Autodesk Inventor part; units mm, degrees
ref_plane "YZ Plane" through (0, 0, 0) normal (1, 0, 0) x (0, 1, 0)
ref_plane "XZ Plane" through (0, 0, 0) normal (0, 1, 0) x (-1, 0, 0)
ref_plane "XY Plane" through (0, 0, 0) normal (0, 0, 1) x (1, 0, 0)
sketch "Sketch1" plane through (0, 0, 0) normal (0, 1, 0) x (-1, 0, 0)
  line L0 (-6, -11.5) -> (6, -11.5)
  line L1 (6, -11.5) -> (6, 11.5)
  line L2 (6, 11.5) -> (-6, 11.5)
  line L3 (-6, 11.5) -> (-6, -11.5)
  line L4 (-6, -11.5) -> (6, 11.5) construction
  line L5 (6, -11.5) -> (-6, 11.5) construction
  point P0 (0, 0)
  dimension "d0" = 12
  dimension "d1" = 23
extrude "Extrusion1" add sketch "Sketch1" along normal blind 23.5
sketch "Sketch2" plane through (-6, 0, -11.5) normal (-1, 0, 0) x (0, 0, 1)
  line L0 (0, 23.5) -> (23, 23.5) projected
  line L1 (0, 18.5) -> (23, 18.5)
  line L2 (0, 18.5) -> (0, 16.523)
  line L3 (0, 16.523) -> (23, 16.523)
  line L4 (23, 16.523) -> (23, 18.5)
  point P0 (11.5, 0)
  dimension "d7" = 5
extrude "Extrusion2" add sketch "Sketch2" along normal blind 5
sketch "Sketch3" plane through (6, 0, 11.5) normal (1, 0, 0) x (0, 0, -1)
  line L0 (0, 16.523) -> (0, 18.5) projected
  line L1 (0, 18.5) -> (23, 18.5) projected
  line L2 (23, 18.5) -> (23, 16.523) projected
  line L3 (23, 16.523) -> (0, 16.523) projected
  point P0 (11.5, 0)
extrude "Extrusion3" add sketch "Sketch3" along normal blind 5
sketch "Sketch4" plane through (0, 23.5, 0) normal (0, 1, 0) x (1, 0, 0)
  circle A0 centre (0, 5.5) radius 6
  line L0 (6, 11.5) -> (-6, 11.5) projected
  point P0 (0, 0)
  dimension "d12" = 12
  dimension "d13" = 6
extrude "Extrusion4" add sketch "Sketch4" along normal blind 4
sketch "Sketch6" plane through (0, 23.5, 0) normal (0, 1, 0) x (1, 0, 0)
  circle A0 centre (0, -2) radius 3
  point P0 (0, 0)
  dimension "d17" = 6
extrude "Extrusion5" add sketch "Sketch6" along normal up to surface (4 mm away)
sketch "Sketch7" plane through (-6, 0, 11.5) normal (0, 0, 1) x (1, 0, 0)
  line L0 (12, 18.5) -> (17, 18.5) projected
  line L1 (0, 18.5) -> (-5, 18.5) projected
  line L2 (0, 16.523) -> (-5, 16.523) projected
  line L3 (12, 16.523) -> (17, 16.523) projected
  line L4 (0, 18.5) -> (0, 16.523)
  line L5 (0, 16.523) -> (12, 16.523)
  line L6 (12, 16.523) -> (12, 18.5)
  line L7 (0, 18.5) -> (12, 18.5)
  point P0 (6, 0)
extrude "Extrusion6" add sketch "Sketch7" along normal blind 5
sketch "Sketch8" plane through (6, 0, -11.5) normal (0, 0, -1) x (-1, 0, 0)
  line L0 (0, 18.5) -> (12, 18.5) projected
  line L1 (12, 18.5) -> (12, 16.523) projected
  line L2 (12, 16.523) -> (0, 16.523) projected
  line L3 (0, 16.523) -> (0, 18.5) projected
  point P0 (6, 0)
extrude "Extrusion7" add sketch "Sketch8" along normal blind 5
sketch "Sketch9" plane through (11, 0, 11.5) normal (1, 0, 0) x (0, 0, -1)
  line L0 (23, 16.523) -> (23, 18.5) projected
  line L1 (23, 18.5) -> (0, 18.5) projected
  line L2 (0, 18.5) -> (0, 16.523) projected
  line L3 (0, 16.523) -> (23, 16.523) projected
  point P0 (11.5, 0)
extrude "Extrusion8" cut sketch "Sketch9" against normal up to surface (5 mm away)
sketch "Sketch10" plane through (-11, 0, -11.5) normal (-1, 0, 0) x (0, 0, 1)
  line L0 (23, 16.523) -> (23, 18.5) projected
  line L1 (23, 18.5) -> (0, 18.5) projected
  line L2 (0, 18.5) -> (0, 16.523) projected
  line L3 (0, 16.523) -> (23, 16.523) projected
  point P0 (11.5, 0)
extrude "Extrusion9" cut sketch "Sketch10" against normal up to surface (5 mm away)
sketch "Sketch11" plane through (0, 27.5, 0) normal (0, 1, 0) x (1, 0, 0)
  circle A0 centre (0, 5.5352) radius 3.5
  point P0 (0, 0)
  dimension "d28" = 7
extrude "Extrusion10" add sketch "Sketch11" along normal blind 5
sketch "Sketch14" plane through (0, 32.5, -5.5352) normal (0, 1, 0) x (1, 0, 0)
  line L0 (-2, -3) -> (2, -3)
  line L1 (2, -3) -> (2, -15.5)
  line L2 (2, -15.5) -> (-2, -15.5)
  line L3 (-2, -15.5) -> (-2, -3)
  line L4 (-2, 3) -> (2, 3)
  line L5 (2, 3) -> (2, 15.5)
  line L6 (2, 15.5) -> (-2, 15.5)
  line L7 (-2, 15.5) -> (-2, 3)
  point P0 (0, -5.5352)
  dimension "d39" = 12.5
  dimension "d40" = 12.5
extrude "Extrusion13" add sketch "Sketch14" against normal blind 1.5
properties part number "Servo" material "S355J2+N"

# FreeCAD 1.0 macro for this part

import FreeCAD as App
import Part
import Sketcher

V = App.Vector

doc = App.newDocument("Part")
params = doc.addObject("Spreadsheet::Sheet", "Params")
for row, (alias, value) in enumerate([
    ("sketch1_width", "12 mm"),
    ("sketch1_height", "23 mm"),
    ("pad1_length", "23.5 mm"),
    ("sketch2_height", "23 mm"),
    ("pad2_length", "5 mm"),
    ("sketch3_height", "23 mm"),
    ("pad3_length", "5 mm"),
    ("sketch4_diameter", "12 mm"),
    ("pad4_length", "4 mm"),
    ("sketch5_diameter", "6 mm"),
    ("pad5_length", "4 mm"),
    ("sketch6_width", "12 mm"),
    ("pad6_length", "5 mm"),
    ("sketch7_width", "12 mm"),
    ("pad7_length", "5 mm"),
    ("sketch8_height", "23 mm"),
    ("pocket1_length", "5 mm"),
    ("sketch9_height", "23 mm"),
    ("pocket2_length", "5 mm"),
    ("sketch10_diameter", "7 mm"),
    ("pad8_length", "5 mm"),
    ("sketch11_height", "12.5 mm"),
    ("sketch11_width", "4 mm"),
    ("pad9_length", "1.5 mm"),
], start=1):
    params.set(f"A{row}", alias)
    params.set(f"B{row}", "=" + value)
    params.setAlias(f"B{row}", alias)

body = doc.addObject("PartDesign::Body", "Body")

# Sketch on XZ plane
sketch1 = doc.addObject("Sketcher::SketchObject", "Sketch")
body.addObject(sketch1)
sketch1.AttachmentSupport = (doc.XZ_Plane, [""])
sketch1.MapMode = "FlatFace"
sketch1.addGeometry(Part.LineSegment(V(6, 12, 0), V(6, -12, 0)), False)
sketch1.addGeometry(Part.LineSegment(V(6, -12, 0), V(-6, -12, 0)), False)
sketch1.addGeometry(Part.LineSegment(V(-6, -12, 0), V(-6, 12, 0)), False)
sketch1.addGeometry(Part.LineSegment(V(-6, 12, 0), V(6, 12, 0)), False)
sketch1.addConstraint(Sketcher.Constraint("Coincident", 0, 2, 1, 1))
sketch1.addConstraint(Sketcher.Constraint("Coincident", 1, 2, 2, 1))
sketch1.addConstraint(Sketcher.Constraint("Coincident", 2, 2, 3, 1))
sketch1.addConstraint(Sketcher.Constraint("Coincident", 3, 2, 0, 1))
sketch1.addConstraint(Sketcher.Constraint("Vertical", 0))
sketch1.addConstraint(Sketcher.Constraint("Horizontal", 1))
sketch1.addConstraint(Sketcher.Constraint("Vertical", 2))
sketch1.addConstraint(Sketcher.Constraint("Horizontal", 3))
sketch1.addConstraint(Sketcher.Constraint("Symmetric", 0, 2, 2, 2, -1, 1))
sketch1.addConstraint(Sketcher.Constraint("DistanceX", 1, 2, 1, 1, 12.0))
sketch1.addConstraint(Sketcher.Constraint("DistanceY", 0, 2, 0, 1, 23.0))
sketch1.setExpression("Constraints[9]", "Params.sketch1_width")
sketch1.setExpression("Constraints[10]", "Params.sketch1_height")
pad1 = doc.addObject("PartDesign::Pad", "Pad")
body.addObject(pad1)
pad1.Profile = sketch1
pad1.setExpression("Length", "Params.pad1_length")
pad1.Reversed = True

# Sketch on YZ plane
sketch2 = doc.addObject("Sketcher::SketchObject", "Sketch001")
body.addObject(sketch2)
sketch2.AttachmentSupport = (doc.YZ_Plane, [""])
sketch2.MapMode = "FlatFace"
sketch2.AttachmentOffset = App.Placement(V(0, 0, -6), App.Rotation())
sketch2.addGeometry(Part.LineSegment(V(18.5, 11.5, 0), V(18.5, -11.5, 0)), False)
sketch2.addGeometry(Part.LineSegment(V(18.5, -11.5, 0), V(16.5, -11.5, 0)), False)
sketch2.addGeometry(Part.LineSegment(V(16.5, -11.5, 0), V(16.5, 11.5, 0)), False)
sketch2.addGeometry(Part.LineSegment(V(16.5, 11.5, 0), V(18.5, 11.5, 0)), False)
sketch2.addConstraint(Sketcher.Constraint("Coincident", 0, 2, 1, 1))
sketch2.addConstraint(Sketcher.Constraint("Coincident", 1, 2, 2, 1))
sketch2.addConstraint(Sketcher.Constraint("Coincident", 2, 2, 3, 1))
sketch2.addConstraint(Sketcher.Constraint("Coincident", 3, 2, 0, 1))
sketch2.addConstraint(Sketcher.Constraint("Vertical", 0))
sketch2.addConstraint(Sketcher.Constraint("Horizontal", 1))
sketch2.addConstraint(Sketcher.Constraint("Vertical", 2))
sketch2.addConstraint(Sketcher.Constraint("Horizontal", 3))
sketch2.addConstraint(Sketcher.Constraint("DistanceY", 0, 2, 0, 1, 23.0))
sketch2.addConstraint(Sketcher.Constraint("DistanceX", -1, 1, 0, 2, 18.5))
sketch2.addConstraint(Sketcher.Constraint("DistanceY", 0, 2, -1, 1, 11.5))
sketch2.addConstraint(Sketcher.Constraint("DistanceX", 1, 2, 1, 1, 1.977))
sketch2.setExpression("Constraints[8]", "Params.sketch2_height")
pad2 = doc.addObject("PartDesign::Pad", "Pad001")
body.addObject(pad2)
pad2.Profile = sketch2
pad2.setExpression("Length", "Params.pad2_length")
pad2.Reversed = True

# Sketch on YZ plane
sketch3 = doc.addObject("Sketcher::SketchObject", "Sketch002")
body.addObject(sketch3)
sketch3.AttachmentSupport = (doc.YZ_Plane, [""])
sketch3.MapMode = "FlatFace"
sketch3.AttachmentOffset = App.Placement(V(0, 0, 6), App.Rotation())
sketch3.addGeometry(Part.LineSegment(V(18.5, 11.5, 0), V(16.5, 11.5, 0)), False)
sketch3.addGeometry(Part.LineSegment(V(16.5, 11.5, 0), V(16.5, -11.5, 0)), False)
sketch3.addGeometry(Part.LineSegment(V(16.5, -11.5, 0), V(18.5, -11.5, 0)), False)
sketch3.addGeometry(Part.LineSegment(V(18.5, -11.5, 0), V(18.5, 11.5, 0)), False)
sketch3.addConstraint(Sketcher.Constraint("Coincident", 0, 2, 1, 1))
sketch3.addConstraint(Sketcher.Constraint("Coincident", 1, 2, 2, 1))
sketch3.addConstraint(Sketcher.Constraint("Coincident", 2, 2, 3, 1))
sketch3.addConstraint(Sketcher.Constraint("Coincident", 3, 2, 0, 1))
sketch3.addConstraint(Sketcher.Constraint("Horizontal", 0))
sketch3.addConstraint(Sketcher.Constraint("Vertical", 1))
sketch3.addConstraint(Sketcher.Constraint("Horizontal", 2))
sketch3.addConstraint(Sketcher.Constraint("Vertical", 3))
sketch3.addConstraint(Sketcher.Constraint("DistanceY", 1, 2, 1, 1, 23.0))
sketch3.addConstraint(Sketcher.Constraint("DistanceY", -1, 1, 0, 2, 11.5))
sketch3.addConstraint(Sketcher.Constraint("DistanceX", -1, 1, 2, 2, 18.5))
sketch3.addConstraint(Sketcher.Constraint("DistanceX", 0, 2, 0, 1, 1.977))
sketch3.setExpression("Constraints[8]", "Params.sketch3_height")
pad3 = doc.addObject("PartDesign::Pad", "Pad002")
body.addObject(pad3)
pad3.Profile = sketch3
pad3.setExpression("Length", "Params.pad3_length")

# Sketch on XZ plane
sketch4 = doc.addObject("Sketcher::SketchObject", "Sketch003")
body.addObject(sketch4)
sketch4.AttachmentSupport = (doc.XZ_Plane, [""])
sketch4.MapMode = "FlatFace"
sketch4.AttachmentOffset = App.Placement(V(0, 0, -23.5), App.Rotation())
sketch4.addGeometry(Part.Circle(V(0, -6, 0), V(0, 0, 1), 6), False)
sketch4.addConstraint(Sketcher.Constraint("PointOnObject", 0, 3, -2))
sketch4.addConstraint(Sketcher.Constraint("Diameter", 0, 12.0))
sketch4.addConstraint(Sketcher.Constraint("DistanceY", 0, 3, -1, 1, 5.5))
sketch4.setExpression("Constraints[1]", "Params.sketch4_diameter")
pad4 = doc.addObject("PartDesign::Pad", "Pad003")
body.addObject(pad4)
pad4.Profile = sketch4
pad4.setExpression("Length", "Params.pad4_length")
pad4.Reversed = True

# Sketch on XZ plane
sketch5 = doc.addObject("Sketcher::SketchObject", "Sketch004")
body.addObject(sketch5)
sketch5.AttachmentSupport = (doc.XZ_Plane, [""])
sketch5.MapMode = "FlatFace"
sketch5.AttachmentOffset = App.Placement(V(0, 0, -23.5), App.Rotation())
sketch5.addGeometry(Part.Circle(V(0, 2, 0), V(0, 0, 1), 3), False)
sketch5.addConstraint(Sketcher.Constraint("PointOnObject", 0, 3, -2))
sketch5.addConstraint(Sketcher.Constraint("Diameter", 0, 6.0))
sketch5.addConstraint(Sketcher.Constraint("DistanceY", -1, 1, 0, 3, 2.0))
sketch5.setExpression("Constraints[1]", "Params.sketch5_diameter")
pad5 = doc.addObject("PartDesign::Pad", "Pad004")
body.addObject(pad5)
pad5.Profile = sketch5
pad5.setExpression("Length", "Params.pad5_length")
pad5.Reversed = True

# Sketch on XY plane
sketch6 = doc.addObject("Sketcher::SketchObject", "Sketch005")
body.addObject(sketch6)
sketch6.AttachmentSupport = (doc.XY_Plane, [""])
sketch6.MapMode = "FlatFace"
sketch6.AttachmentOffset = App.Placement(V(0, 0, 11.5), App.Rotation())
sketch6.addGeometry(Part.LineSegment(V(6, 18.5, 0), V(-6, 18.5, 0)), False)
sketch6.addGeometry(Part.LineSegment(V(-6, 18.5, 0), V(-6, 16.5, 0)), False)
sketch6.addGeometry(Part.LineSegment(V(-6, 16.5, 0), V(6, 16.5, 0)), False)
sketch6.addGeometry(Part.LineSegment(V(6, 16.5, 0), V(6, 18.5, 0)), False)
sketch6.addConstraint(Sketcher.Constraint("Coincident", 0, 2, 1, 1))
sketch6.addConstraint(Sketcher.Constraint("Coincident", 1, 2, 2, 1))
sketch6.addConstraint(Sketcher.Constraint("Coincident", 2, 2, 3, 1))
sketch6.addConstraint(Sketcher.Constraint("Coincident", 3, 2, 0, 1))
sketch6.addConstraint(Sketcher.Constraint("Horizontal", 0))
sketch6.addConstraint(Sketcher.Constraint("Vertical", 1))
sketch6.addConstraint(Sketcher.Constraint("Horizontal", 2))
sketch6.addConstraint(Sketcher.Constraint("Vertical", 3))
sketch6.addConstraint(Sketcher.Constraint("DistanceX", 0, 2, 0, 1, 12.0))
sketch6.addConstraint(Sketcher.Constraint("DistanceX", 0, 2, -1, 1, 6.0))
sketch6.addConstraint(Sketcher.Constraint("DistanceY", -1, 1, 0, 2, 18.5))
sketch6.addConstraint(Sketcher.Constraint("DistanceY", 1, 2, 1, 1, 1.977))
sketch6.setExpression("Constraints[8]", "Params.sketch6_width")
pad6 = doc.addObject("PartDesign::Pad", "Pad005")
body.addObject(pad6)
pad6.Profile = sketch6
pad6.setExpression("Length", "Params.pad6_length")

# Sketch on XY plane
sketch7 = doc.addObject("Sketcher::SketchObject", "Sketch006")
body.addObject(sketch7)
sketch7.AttachmentSupport = (doc.XY_Plane, [""])
sketch7.MapMode = "FlatFace"
sketch7.AttachmentOffset = App.Placement(V(0, 0, -11.5), App.Rotation())
sketch7.addGeometry(Part.LineSegment(V(-6, 18.5, 0), V(6, 18.5, 0)), False)
sketch7.addGeometry(Part.LineSegment(V(6, 18.5, 0), V(6, 16.5, 0)), False)
sketch7.addGeometry(Part.LineSegment(V(6, 16.5, 0), V(-6, 16.5, 0)), False)
sketch7.addGeometry(Part.LineSegment(V(-6, 16.5, 0), V(-6, 18.5, 0)), False)
sketch7.addConstraint(Sketcher.Constraint("Coincident", 0, 2, 1, 1))
sketch7.addConstraint(Sketcher.Constraint("Coincident", 1, 2, 2, 1))
sketch7.addConstraint(Sketcher.Constraint("Coincident", 2, 2, 3, 1))
sketch7.addConstraint(Sketcher.Constraint("Coincident", 3, 2, 0, 1))
sketch7.addConstraint(Sketcher.Constraint("Horizontal", 0))
sketch7.addConstraint(Sketcher.Constraint("Vertical", 1))
sketch7.addConstraint(Sketcher.Constraint("Horizontal", 2))
sketch7.addConstraint(Sketcher.Constraint("Vertical", 3))
sketch7.addConstraint(Sketcher.Constraint("DistanceX", 0, 1, 0, 2, 12.0))
sketch7.addConstraint(Sketcher.Constraint("DistanceX", -1, 1, 0, 2, 6.0))
sketch7.addConstraint(Sketcher.Constraint("DistanceY", -1, 1, 0, 2, 18.5))
sketch7.addConstraint(Sketcher.Constraint("DistanceY", 1, 2, 1, 1, 1.977))
sketch7.setExpression("Constraints[8]", "Params.sketch7_width")
pad7 = doc.addObject("PartDesign::Pad", "Pad006")
body.addObject(pad7)
pad7.Profile = sketch7
pad7.setExpression("Length", "Params.pad7_length")
pad7.Reversed = True

# Sketch on YZ plane
sketch8 = doc.addObject("Sketcher::SketchObject", "Sketch007")
body.addObject(sketch8)
sketch8.AttachmentSupport = (doc.YZ_Plane, [""])
sketch8.MapMode = "FlatFace"
sketch8.AttachmentOffset = App.Placement(V(0, 0, 11), App.Rotation())
sketch8.addGeometry(Part.LineSegment(V(16.5, 11.5, 0), V(16.5, -11.5, 0)), False)
sketch8.addGeometry(Part.LineSegment(V(16.5, -11.5, 0), V(18.5, -11.5, 0)), False)
sketch8.addGeometry(Part.LineSegment(V(18.5, -11.5, 0), V(18.5, 11.5, 0)), False)
sketch8.addGeometry(Part.LineSegment(V(18.5, 11.5, 0), V(16.5, 11.5, 0)), False)
sketch8.addConstraint(Sketcher.Constraint("Coincident", 0, 2, 1, 1))
sketch8.addConstraint(Sketcher.Constraint("Coincident", 1, 2, 2, 1))
sketch8.addConstraint(Sketcher.Constraint("Coincident", 2, 2, 3, 1))
sketch8.addConstraint(Sketcher.Constraint("Coincident", 3, 2, 0, 1))
sketch8.addConstraint(Sketcher.Constraint("Vertical", 0))
sketch8.addConstraint(Sketcher.Constraint("Horizontal", 1))
sketch8.addConstraint(Sketcher.Constraint("Vertical", 2))
sketch8.addConstraint(Sketcher.Constraint("Horizontal", 3))
sketch8.addConstraint(Sketcher.Constraint("DistanceY", 0, 2, 0, 1, 23.0))
sketch8.addConstraint(Sketcher.Constraint("DistanceY", 0, 2, -1, 1, 11.5))
sketch8.addConstraint(Sketcher.Constraint("DistanceX", -1, 1, 1, 2, 18.5))
sketch8.addConstraint(Sketcher.Constraint("DistanceX", 1, 1, 1, 2, 1.977))
sketch8.setExpression("Constraints[8]", "Params.sketch8_height")
pocket1 = doc.addObject("PartDesign::Pocket", "Pocket")
body.addObject(pocket1)
pocket1.Profile = sketch8
pocket1.setExpression("Length", "Params.pocket1_length")

# Sketch on YZ plane
sketch9 = doc.addObject("Sketcher::SketchObject", "Sketch008")
body.addObject(sketch9)
sketch9.AttachmentSupport = (doc.YZ_Plane, [""])
sketch9.MapMode = "FlatFace"
sketch9.AttachmentOffset = App.Placement(V(0, 0, -11), App.Rotation())
sketch9.addGeometry(Part.LineSegment(V(16.5, -11.5, 0), V(16.5, 11.5, 0)), False)
sketch9.addGeometry(Part.LineSegment(V(16.5, 11.5, 0), V(18.5, 11.5, 0)), False)
sketch9.addGeometry(Part.LineSegment(V(18.5, 11.5, 0), V(18.5, -11.5, 0)), False)
sketch9.addGeometry(Part.LineSegment(V(18.5, -11.5, 0), V(16.5, -11.5, 0)), False)
sketch9.addConstraint(Sketcher.Constraint("Coincident", 0, 2, 1, 1))
sketch9.addConstraint(Sketcher.Constraint("Coincident", 1, 2, 2, 1))
sketch9.addConstraint(Sketcher.Constraint("Coincident", 2, 2, 3, 1))
sketch9.addConstraint(Sketcher.Constraint("Coincident", 3, 2, 0, 1))
sketch9.addConstraint(Sketcher.Constraint("Vertical", 0))
sketch9.addConstraint(Sketcher.Constraint("Horizontal", 1))
sketch9.addConstraint(Sketcher.Constraint("Vertical", 2))
sketch9.addConstraint(Sketcher.Constraint("Horizontal", 3))
sketch9.addConstraint(Sketcher.Constraint("DistanceY", 0, 1, 0, 2, 23.0))
sketch9.addConstraint(Sketcher.Constraint("DistanceY", -1, 1, 0, 2, 11.5))
sketch9.addConstraint(Sketcher.Constraint("DistanceX", -1, 1, 1, 2, 18.5))
sketch9.addConstraint(Sketcher.Constraint("DistanceX", 1, 1, 1, 2, 1.977))
sketch9.setExpression("Constraints[8]", "Params.sketch9_height")
pocket2 = doc.addObject("PartDesign::Pocket", "Pocket001")
body.addObject(pocket2)
pocket2.Profile = sketch9
pocket2.setExpression("Length", "Params.pocket2_length")
pocket2.Reversed = True

# Sketch on XZ plane
sketch10 = doc.addObject("Sketcher::SketchObject", "Sketch009")
body.addObject(sketch10)
sketch10.AttachmentSupport = (doc.XZ_Plane, [""])
sketch10.MapMode = "FlatFace"
sketch10.AttachmentOffset = App.Placement(V(0, 0, -27.5), App.Rotation())
sketch10.addGeometry(Part.Circle(V(0, -5.5, 0), V(0, 0, 1), 3.5), False)
sketch10.addConstraint(Sketcher.Constraint("PointOnObject", 0, 3, -2))
sketch10.addConstraint(Sketcher.Constraint("Diameter", 0, 7.0))
sketch10.addConstraint(Sketcher.Constraint("DistanceY", 0, 3, -1, 1, 5.5352))
sketch10.setExpression("Constraints[1]", "Params.sketch10_diameter")
pad8 = doc.addObject("PartDesign::Pad", "Pad007")
body.addObject(pad8)
pad8.Profile = sketch10
pad8.setExpression("Length", "Params.pad8_length")
pad8.Reversed = True

# Sketch on XZ plane
sketch11 = doc.addObject("Sketcher::SketchObject", "Sketch010")
body.addObject(sketch11)
sketch11.AttachmentSupport = (doc.XZ_Plane, [""])
sketch11.MapMode = "FlatFace"
sketch11.AttachmentOffset = App.Placement(V(0, 0, -32.5), App.Rotation())
sketch11.addGeometry(Part.LineSegment(V(2, -2.5, 0), V(-2, -2.5, 0)), False)
sketch11.addGeometry(Part.LineSegment(V(-2, -2.5, 0), V(-2, 10, 0)), False)
sketch11.addGeometry(Part.LineSegment(V(-2, 10, 0), V(2, 10, 0)), False)
sketch11.addGeometry(Part.LineSegment(V(2, 10, 0), V(2, -2.5, 0)), False)
sketch11.addGeometry(Part.LineSegment(V(-2, -21, 0), V(-2, -8.5, 0)), False)
sketch11.addGeometry(Part.LineSegment(V(-2, -8.5, 0), V(2, -8.5, 0)), False)
sketch11.addGeometry(Part.LineSegment(V(2, -8.5, 0), V(2, -21, 0)), False)
sketch11.addGeometry(Part.LineSegment(V(2, -21, 0), V(-2, -21, 0)), False)
sketch11.addConstraint(Sketcher.Constraint("Coincident", 0, 2, 1, 1))
sketch11.addConstraint(Sketcher.Constraint("Coincident", 1, 2, 2, 1))
sketch11.addConstraint(Sketcher.Constraint("Coincident", 2, 2, 3, 1))
sketch11.addConstraint(Sketcher.Constraint("Coincident", 3, 2, 0, 1))
sketch11.addConstraint(Sketcher.Constraint("Coincident", 4, 2, 5, 1))
sketch11.addConstraint(Sketcher.Constraint("Coincident", 5, 2, 6, 1))
sketch11.addConstraint(Sketcher.Constraint("Coincident", 6, 2, 7, 1))
sketch11.addConstraint(Sketcher.Constraint("Coincident", 7, 2, 4, 1))
sketch11.addConstraint(Sketcher.Constraint("Horizontal", 0))
sketch11.addConstraint(Sketcher.Constraint("Vertical", 1))
sketch11.addConstraint(Sketcher.Constraint("Horizontal", 2))
sketch11.addConstraint(Sketcher.Constraint("Vertical", 3))
sketch11.addConstraint(Sketcher.Constraint("Vertical", 4))
sketch11.addConstraint(Sketcher.Constraint("Horizontal", 5))
sketch11.addConstraint(Sketcher.Constraint("Vertical", 6))
sketch11.addConstraint(Sketcher.Constraint("Horizontal", 7))
sketch11.addConstraint(Sketcher.Constraint("Vertical", 1, 2, 4, 2))
sketch11.addConstraint(Sketcher.Constraint("Vertical", 3, 2, 5, 2))
sketch11.addConstraint(Sketcher.Constraint("Equal", 3, 4))
sketch11.addConstraint(Sketcher.Constraint("DistanceY", 1, 1, 1, 2, 12.5))
sketch11.addConstraint(Sketcher.Constraint("DistanceX", 0, 2, 0, 1, 4.0))
sketch11.addConstraint(Sketcher.Constraint("DistanceX", 0, 2, -1, 1, 2.0))
sketch11.addConstraint(Sketcher.Constraint("DistanceY", 4, 2, 0, 2, 6.0))
sketch11.addConstraint(Sketcher.Constraint("DistanceY", 0, 2, -1, 1, 2.5352))
sketch11.setExpression("Constraints[19]", "Params.sketch11_height")
sketch11.setExpression("Constraints[20]", "Params.sketch11_width")
pad9 = doc.addObject("PartDesign::Pad", "Pad008")
body.addObject(pad9)
pad9.Profile = sketch11
pad9.setExpression("Length", "Params.pad9_length")

doc.recompute()
